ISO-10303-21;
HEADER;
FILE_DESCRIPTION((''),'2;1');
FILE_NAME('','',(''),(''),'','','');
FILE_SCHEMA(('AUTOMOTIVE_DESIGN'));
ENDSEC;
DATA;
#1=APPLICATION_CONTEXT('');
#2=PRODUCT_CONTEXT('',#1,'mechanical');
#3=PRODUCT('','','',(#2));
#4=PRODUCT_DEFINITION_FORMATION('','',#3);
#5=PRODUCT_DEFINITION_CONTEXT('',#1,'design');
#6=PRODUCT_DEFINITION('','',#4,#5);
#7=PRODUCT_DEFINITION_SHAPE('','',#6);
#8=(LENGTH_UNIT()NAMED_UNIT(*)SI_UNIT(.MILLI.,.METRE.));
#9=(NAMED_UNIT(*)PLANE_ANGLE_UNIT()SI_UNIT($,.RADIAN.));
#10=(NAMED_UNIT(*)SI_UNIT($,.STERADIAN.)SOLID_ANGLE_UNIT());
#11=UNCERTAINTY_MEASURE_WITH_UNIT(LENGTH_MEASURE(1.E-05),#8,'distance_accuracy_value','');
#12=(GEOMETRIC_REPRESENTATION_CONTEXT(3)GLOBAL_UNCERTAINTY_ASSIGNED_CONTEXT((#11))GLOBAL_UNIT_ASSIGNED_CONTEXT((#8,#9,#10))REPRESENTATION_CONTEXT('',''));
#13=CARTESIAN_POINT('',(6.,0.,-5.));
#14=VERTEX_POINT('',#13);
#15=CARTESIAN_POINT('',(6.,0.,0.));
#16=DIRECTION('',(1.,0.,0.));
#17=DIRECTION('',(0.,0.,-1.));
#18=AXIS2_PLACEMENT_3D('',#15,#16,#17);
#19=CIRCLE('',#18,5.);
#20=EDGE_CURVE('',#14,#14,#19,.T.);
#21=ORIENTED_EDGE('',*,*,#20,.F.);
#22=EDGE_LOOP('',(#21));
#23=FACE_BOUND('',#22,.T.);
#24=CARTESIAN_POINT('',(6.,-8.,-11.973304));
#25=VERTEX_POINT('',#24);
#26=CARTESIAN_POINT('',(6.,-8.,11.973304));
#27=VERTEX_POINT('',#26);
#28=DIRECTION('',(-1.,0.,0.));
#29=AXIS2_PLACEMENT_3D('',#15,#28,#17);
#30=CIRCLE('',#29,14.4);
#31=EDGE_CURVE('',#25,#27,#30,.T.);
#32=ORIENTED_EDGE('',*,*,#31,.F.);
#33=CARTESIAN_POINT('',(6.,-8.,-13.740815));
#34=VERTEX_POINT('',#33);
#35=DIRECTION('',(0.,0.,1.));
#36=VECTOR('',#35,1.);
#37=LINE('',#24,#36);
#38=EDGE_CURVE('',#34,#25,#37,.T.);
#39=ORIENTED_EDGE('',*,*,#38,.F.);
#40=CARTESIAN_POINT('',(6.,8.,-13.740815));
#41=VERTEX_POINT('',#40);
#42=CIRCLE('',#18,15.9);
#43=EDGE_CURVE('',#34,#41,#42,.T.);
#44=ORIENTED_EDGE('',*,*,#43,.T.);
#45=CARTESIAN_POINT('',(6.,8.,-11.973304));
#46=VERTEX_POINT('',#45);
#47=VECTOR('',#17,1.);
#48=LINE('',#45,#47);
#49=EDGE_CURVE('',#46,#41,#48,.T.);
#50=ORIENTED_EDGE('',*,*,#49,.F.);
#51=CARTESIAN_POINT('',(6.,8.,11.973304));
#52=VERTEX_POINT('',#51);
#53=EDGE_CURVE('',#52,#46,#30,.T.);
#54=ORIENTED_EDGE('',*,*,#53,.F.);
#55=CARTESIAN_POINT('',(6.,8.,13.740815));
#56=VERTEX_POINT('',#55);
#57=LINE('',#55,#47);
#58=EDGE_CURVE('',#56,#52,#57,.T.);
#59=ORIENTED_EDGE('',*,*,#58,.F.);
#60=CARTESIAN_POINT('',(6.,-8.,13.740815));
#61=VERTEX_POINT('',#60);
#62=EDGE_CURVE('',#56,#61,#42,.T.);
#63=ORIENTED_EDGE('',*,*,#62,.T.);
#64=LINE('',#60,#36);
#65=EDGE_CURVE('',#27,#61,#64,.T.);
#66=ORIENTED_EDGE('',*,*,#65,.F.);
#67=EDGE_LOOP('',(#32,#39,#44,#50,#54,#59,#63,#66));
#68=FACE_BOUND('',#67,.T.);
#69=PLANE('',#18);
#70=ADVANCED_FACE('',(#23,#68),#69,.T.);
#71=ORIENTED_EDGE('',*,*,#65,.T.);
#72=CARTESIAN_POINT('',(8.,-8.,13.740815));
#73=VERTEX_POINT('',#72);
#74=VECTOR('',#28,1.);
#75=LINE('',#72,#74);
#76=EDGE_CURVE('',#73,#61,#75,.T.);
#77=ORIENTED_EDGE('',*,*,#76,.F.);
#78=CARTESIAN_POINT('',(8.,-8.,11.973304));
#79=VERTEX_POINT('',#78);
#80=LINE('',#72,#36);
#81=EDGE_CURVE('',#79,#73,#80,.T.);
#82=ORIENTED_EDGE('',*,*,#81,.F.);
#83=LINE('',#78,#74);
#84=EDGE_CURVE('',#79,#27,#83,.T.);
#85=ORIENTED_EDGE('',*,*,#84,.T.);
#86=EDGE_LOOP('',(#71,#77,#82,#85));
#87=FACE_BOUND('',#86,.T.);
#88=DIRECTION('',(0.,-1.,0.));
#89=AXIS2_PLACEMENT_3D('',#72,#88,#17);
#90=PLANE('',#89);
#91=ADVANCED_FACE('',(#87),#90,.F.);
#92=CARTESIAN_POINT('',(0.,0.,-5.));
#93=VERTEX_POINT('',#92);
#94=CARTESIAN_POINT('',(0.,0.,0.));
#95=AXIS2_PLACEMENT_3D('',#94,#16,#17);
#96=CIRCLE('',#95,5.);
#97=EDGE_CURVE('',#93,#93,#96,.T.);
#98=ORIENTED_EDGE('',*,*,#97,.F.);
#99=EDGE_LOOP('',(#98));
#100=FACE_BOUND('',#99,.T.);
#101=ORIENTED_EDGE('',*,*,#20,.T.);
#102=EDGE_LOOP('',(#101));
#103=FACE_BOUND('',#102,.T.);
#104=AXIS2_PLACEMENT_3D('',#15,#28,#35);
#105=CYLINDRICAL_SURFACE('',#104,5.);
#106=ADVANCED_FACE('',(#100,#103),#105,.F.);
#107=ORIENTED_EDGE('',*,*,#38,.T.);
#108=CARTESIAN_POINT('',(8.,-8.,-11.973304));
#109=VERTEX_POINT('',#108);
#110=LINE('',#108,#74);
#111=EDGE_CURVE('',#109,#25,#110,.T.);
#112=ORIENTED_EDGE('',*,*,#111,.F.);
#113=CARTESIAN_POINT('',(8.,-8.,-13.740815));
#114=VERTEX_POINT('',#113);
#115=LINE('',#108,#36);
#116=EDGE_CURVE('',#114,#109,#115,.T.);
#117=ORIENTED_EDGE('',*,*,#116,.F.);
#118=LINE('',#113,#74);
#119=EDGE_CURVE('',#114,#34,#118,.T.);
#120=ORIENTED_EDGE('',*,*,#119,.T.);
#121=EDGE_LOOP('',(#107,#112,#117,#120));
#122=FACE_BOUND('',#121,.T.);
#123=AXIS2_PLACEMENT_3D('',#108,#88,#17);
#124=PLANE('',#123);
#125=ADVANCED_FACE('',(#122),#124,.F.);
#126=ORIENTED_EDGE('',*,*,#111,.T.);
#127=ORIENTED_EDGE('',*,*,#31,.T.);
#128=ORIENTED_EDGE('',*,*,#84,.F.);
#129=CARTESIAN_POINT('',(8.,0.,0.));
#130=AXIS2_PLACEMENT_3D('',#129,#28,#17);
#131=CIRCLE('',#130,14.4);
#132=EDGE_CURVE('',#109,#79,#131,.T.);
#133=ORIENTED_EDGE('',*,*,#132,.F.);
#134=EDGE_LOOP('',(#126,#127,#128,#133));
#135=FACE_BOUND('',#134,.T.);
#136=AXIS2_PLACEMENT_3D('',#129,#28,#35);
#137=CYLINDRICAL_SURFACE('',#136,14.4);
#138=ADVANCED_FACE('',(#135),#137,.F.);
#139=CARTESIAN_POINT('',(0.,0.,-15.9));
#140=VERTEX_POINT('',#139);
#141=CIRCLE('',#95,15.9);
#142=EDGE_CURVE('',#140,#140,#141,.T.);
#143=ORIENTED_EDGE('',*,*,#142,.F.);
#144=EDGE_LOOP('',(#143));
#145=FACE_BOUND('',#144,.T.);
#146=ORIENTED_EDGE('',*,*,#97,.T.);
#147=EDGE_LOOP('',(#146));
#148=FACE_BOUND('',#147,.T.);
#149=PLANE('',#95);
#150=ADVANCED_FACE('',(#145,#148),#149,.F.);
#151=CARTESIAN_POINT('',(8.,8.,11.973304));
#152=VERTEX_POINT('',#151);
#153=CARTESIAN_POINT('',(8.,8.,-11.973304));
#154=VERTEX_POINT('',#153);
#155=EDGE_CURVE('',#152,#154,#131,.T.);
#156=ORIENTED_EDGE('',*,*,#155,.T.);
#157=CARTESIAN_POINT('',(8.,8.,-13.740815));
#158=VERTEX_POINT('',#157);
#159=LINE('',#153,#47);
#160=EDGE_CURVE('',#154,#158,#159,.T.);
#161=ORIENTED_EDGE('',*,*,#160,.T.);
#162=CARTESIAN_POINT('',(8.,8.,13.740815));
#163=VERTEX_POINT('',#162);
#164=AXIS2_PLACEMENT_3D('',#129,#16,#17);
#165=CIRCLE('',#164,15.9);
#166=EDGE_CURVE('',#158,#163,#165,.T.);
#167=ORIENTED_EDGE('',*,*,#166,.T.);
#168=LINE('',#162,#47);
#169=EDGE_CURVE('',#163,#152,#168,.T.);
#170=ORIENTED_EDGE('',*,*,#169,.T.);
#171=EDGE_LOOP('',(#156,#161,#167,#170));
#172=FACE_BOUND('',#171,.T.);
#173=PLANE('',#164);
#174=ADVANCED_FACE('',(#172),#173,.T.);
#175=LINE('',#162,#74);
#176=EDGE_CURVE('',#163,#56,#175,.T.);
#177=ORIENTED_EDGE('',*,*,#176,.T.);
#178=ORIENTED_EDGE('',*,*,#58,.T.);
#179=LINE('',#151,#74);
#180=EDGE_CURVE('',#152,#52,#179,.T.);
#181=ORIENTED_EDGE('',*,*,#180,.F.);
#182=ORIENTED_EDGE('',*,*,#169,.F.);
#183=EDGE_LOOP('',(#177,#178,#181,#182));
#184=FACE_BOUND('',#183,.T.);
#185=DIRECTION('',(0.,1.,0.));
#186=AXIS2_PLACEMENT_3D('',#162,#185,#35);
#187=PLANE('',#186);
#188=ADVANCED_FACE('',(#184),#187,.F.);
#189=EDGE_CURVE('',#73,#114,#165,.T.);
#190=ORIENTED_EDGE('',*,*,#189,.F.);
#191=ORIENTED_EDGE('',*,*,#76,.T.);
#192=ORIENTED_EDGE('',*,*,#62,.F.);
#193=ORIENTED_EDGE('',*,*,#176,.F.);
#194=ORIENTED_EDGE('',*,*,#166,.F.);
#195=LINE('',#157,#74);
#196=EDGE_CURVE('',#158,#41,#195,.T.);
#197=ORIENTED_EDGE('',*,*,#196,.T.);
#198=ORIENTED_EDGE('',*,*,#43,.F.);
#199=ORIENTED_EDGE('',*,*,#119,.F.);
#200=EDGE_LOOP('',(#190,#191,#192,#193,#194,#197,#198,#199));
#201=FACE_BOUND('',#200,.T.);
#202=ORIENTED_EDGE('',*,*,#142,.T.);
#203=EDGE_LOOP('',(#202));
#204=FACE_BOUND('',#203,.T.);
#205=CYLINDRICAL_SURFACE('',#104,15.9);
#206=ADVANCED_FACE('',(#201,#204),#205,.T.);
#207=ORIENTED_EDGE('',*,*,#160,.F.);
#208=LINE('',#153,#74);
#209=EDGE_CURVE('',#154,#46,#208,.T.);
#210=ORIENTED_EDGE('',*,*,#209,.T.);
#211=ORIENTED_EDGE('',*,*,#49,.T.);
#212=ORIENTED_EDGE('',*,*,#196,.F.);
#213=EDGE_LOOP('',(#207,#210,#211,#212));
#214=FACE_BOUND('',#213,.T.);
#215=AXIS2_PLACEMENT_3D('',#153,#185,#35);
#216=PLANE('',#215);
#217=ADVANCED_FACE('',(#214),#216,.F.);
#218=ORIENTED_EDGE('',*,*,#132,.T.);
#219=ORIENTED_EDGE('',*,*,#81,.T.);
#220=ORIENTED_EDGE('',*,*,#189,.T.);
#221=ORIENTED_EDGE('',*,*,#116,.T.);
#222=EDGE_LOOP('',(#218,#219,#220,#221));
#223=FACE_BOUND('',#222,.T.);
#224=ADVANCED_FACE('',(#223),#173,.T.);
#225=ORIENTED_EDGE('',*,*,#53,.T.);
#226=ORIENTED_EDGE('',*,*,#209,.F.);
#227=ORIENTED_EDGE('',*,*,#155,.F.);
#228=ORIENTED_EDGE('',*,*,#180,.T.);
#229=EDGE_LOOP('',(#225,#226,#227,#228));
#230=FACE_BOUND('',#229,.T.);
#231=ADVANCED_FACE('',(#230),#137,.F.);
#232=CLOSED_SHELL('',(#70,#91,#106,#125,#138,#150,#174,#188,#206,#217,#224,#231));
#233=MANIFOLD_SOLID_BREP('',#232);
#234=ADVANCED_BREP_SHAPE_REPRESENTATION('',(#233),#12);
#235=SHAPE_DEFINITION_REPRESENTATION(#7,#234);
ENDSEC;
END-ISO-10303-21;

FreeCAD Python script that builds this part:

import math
import FreeCAD as App
import Part
import Sketcher

V = App.Vector

doc = App.newDocument("Part")
params = doc.addObject("Spreadsheet::Sheet", "Params")
for row, (alias, value) in enumerate([
    ("sketch1_diameter", "10 mm"),
    ("sketch1_diameter2", "31.8 mm"),
    ("pad1_length", "6 mm"),
    ("sketch2_radius", "14.4 mm"),
    ("sketch2_radius2", "15.9 mm"),
    ("pad2_length", "2 mm"),
], start=1):
    params.set(f"A{row}", alias)
    params.set(f"B{row}", "=" + value)
    params.setAlias(f"B{row}", alias)

body = doc.addObject("PartDesign::Body", "Body")

# Sketch on YZ plane
sketch1 = doc.addObject("Sketcher::SketchObject", "Sketch")
body.addObject(sketch1)
sketch1.AttachmentSupport = (doc.YZ_Plane, [""])
sketch1.MapMode = "FlatFace"
sketch1.addGeometry([
    Part.Circle(V(0, 0, 0), V(0, 0, 1), 16),
    Part.Circle(V(0, 0, 0), V(0, 0, 1), 5),
], False)
sketch1.addConstraint([
    Sketcher.Constraint("Coincident", 0, 3, -1, 1),
    Sketcher.Constraint("Coincident", 1, 3, -1, 1),
    Sketcher.Constraint("Diameter", 1, 10.0),
    Sketcher.Constraint("Diameter", 0, 31.8),
])
sketch1.setExpression("Constraints[2]", "Params.sketch1_diameter")
sketch1.setExpression("Constraints[3]", "Params.sketch1_diameter2")
pad1 = doc.addObject("PartDesign::Pad", "Pad")
body.addObject(pad1)
pad1.Profile = sketch1
pad1.setExpression("Length", "Params.pad1_length")

# Sketch on YZ plane
sketch2 = doc.addObject("Sketcher::SketchObject", "Sketch001")
body.addObject(sketch2)
sketch2.AttachmentSupport = (doc.YZ_Plane, [""])
sketch2.MapMode = "FlatFace"
sketch2.AttachmentOffset = App.Placement(V(0, 0, 6), App.Rotation())
sketch2.addGeometry([
    Part.LineSegment(V(-8, -13.7, 0), V(-8, -12, 0)),  # 0
    Part.ArcOfCircle(Part.Circle(V(0, 0, 0), V(0, 0, 1), 14.4), math.radians(124), math.radians(236)),  # 1
    Part.LineSegment(V(-8, 12, 0), V(-8, 13.7, 0)),  # 2
    Part.ArcOfCircle(Part.Circle(V(0, 0, 0), V(0, 0, 1), 15.9), math.radians(120), math.radians(240)),  # 3
    Part.LineSegment(V(8, 13.7, 0), V(8, 12, 0)),  # 4
    Part.ArcOfCircle(Part.Circle(V(0, 0, 0), V(0, 0, 1), 14.4), math.radians(-56), math.radians(56)),  # 5
    Part.LineSegment(V(8, -12, 0), V(8, -13.7, 0)),  # 6
    Part.ArcOfCircle(Part.Circle(V(0, 0, 0), V(0, 0, 1), 15.9), math.radians(-60), math.radians(60)),  # 7
], False)
sketch2.addConstraint([
    Sketcher.Constraint("Coincident", 0, 2, 1, 2),
    Sketcher.Constraint("Coincident", 1, 1, 2, 1),
    Sketcher.Constraint("Coincident", 2, 2, 3, 1),
    Sketcher.Constraint("Coincident", 3, 2, 0, 1),
    Sketcher.Constraint("Coincident", 4, 2, 5, 2),
    Sketcher.Constraint("Coincident", 5, 1, 6, 1),
    Sketcher.Constraint("Coincident", 6, 2, 7, 1),
    Sketcher.Constraint("Coincident", 7, 2, 4, 1),
    Sketcher.Constraint("Vertical", 0),
    Sketcher.Constraint("Vertical", 2),
    Sketcher.Constraint("Vertical", 4),
    Sketcher.Constraint("Vertical", 6),
    Sketcher.Constraint("Coincident", 1, 3, -1, 1),
    Sketcher.Constraint("Coincident", 3, 3, -1, 1),
    Sketcher.Constraint("Coincident", 5, 3, -1, 1),
    Sketcher.Constraint("Coincident", 7, 3, -1, 1),
    Sketcher.Constraint("Equal", 1, 5),
    Sketcher.Constraint("Equal", 3, 7),
    Sketcher.Constraint("Horizontal", 1, 1, 4, 2),
    Sketcher.Constraint("Horizontal", 0, 2, 5, 1),
    Sketcher.Constraint("Vertical", 0, 2, 1, 1),
    Sketcher.Constraint("Radius", 1, 14.4),
    Sketcher.Constraint("Radius", 3, 15.9),
    Sketcher.Constraint("DistanceX", 0, 2, -1, 1, 8.0),
])
sketch2.setExpression("Constraints[21]", "Params.sketch2_radius")
sketch2.setExpression("Constraints[22]", "Params.sketch2_radius2")
pad2 = doc.addObject("PartDesign::Pad", "Pad001")
body.addObject(pad2)
pad2.Profile = sketch2
pad2.setExpression("Length", "Params.pad2_length")

doc.recompute()
